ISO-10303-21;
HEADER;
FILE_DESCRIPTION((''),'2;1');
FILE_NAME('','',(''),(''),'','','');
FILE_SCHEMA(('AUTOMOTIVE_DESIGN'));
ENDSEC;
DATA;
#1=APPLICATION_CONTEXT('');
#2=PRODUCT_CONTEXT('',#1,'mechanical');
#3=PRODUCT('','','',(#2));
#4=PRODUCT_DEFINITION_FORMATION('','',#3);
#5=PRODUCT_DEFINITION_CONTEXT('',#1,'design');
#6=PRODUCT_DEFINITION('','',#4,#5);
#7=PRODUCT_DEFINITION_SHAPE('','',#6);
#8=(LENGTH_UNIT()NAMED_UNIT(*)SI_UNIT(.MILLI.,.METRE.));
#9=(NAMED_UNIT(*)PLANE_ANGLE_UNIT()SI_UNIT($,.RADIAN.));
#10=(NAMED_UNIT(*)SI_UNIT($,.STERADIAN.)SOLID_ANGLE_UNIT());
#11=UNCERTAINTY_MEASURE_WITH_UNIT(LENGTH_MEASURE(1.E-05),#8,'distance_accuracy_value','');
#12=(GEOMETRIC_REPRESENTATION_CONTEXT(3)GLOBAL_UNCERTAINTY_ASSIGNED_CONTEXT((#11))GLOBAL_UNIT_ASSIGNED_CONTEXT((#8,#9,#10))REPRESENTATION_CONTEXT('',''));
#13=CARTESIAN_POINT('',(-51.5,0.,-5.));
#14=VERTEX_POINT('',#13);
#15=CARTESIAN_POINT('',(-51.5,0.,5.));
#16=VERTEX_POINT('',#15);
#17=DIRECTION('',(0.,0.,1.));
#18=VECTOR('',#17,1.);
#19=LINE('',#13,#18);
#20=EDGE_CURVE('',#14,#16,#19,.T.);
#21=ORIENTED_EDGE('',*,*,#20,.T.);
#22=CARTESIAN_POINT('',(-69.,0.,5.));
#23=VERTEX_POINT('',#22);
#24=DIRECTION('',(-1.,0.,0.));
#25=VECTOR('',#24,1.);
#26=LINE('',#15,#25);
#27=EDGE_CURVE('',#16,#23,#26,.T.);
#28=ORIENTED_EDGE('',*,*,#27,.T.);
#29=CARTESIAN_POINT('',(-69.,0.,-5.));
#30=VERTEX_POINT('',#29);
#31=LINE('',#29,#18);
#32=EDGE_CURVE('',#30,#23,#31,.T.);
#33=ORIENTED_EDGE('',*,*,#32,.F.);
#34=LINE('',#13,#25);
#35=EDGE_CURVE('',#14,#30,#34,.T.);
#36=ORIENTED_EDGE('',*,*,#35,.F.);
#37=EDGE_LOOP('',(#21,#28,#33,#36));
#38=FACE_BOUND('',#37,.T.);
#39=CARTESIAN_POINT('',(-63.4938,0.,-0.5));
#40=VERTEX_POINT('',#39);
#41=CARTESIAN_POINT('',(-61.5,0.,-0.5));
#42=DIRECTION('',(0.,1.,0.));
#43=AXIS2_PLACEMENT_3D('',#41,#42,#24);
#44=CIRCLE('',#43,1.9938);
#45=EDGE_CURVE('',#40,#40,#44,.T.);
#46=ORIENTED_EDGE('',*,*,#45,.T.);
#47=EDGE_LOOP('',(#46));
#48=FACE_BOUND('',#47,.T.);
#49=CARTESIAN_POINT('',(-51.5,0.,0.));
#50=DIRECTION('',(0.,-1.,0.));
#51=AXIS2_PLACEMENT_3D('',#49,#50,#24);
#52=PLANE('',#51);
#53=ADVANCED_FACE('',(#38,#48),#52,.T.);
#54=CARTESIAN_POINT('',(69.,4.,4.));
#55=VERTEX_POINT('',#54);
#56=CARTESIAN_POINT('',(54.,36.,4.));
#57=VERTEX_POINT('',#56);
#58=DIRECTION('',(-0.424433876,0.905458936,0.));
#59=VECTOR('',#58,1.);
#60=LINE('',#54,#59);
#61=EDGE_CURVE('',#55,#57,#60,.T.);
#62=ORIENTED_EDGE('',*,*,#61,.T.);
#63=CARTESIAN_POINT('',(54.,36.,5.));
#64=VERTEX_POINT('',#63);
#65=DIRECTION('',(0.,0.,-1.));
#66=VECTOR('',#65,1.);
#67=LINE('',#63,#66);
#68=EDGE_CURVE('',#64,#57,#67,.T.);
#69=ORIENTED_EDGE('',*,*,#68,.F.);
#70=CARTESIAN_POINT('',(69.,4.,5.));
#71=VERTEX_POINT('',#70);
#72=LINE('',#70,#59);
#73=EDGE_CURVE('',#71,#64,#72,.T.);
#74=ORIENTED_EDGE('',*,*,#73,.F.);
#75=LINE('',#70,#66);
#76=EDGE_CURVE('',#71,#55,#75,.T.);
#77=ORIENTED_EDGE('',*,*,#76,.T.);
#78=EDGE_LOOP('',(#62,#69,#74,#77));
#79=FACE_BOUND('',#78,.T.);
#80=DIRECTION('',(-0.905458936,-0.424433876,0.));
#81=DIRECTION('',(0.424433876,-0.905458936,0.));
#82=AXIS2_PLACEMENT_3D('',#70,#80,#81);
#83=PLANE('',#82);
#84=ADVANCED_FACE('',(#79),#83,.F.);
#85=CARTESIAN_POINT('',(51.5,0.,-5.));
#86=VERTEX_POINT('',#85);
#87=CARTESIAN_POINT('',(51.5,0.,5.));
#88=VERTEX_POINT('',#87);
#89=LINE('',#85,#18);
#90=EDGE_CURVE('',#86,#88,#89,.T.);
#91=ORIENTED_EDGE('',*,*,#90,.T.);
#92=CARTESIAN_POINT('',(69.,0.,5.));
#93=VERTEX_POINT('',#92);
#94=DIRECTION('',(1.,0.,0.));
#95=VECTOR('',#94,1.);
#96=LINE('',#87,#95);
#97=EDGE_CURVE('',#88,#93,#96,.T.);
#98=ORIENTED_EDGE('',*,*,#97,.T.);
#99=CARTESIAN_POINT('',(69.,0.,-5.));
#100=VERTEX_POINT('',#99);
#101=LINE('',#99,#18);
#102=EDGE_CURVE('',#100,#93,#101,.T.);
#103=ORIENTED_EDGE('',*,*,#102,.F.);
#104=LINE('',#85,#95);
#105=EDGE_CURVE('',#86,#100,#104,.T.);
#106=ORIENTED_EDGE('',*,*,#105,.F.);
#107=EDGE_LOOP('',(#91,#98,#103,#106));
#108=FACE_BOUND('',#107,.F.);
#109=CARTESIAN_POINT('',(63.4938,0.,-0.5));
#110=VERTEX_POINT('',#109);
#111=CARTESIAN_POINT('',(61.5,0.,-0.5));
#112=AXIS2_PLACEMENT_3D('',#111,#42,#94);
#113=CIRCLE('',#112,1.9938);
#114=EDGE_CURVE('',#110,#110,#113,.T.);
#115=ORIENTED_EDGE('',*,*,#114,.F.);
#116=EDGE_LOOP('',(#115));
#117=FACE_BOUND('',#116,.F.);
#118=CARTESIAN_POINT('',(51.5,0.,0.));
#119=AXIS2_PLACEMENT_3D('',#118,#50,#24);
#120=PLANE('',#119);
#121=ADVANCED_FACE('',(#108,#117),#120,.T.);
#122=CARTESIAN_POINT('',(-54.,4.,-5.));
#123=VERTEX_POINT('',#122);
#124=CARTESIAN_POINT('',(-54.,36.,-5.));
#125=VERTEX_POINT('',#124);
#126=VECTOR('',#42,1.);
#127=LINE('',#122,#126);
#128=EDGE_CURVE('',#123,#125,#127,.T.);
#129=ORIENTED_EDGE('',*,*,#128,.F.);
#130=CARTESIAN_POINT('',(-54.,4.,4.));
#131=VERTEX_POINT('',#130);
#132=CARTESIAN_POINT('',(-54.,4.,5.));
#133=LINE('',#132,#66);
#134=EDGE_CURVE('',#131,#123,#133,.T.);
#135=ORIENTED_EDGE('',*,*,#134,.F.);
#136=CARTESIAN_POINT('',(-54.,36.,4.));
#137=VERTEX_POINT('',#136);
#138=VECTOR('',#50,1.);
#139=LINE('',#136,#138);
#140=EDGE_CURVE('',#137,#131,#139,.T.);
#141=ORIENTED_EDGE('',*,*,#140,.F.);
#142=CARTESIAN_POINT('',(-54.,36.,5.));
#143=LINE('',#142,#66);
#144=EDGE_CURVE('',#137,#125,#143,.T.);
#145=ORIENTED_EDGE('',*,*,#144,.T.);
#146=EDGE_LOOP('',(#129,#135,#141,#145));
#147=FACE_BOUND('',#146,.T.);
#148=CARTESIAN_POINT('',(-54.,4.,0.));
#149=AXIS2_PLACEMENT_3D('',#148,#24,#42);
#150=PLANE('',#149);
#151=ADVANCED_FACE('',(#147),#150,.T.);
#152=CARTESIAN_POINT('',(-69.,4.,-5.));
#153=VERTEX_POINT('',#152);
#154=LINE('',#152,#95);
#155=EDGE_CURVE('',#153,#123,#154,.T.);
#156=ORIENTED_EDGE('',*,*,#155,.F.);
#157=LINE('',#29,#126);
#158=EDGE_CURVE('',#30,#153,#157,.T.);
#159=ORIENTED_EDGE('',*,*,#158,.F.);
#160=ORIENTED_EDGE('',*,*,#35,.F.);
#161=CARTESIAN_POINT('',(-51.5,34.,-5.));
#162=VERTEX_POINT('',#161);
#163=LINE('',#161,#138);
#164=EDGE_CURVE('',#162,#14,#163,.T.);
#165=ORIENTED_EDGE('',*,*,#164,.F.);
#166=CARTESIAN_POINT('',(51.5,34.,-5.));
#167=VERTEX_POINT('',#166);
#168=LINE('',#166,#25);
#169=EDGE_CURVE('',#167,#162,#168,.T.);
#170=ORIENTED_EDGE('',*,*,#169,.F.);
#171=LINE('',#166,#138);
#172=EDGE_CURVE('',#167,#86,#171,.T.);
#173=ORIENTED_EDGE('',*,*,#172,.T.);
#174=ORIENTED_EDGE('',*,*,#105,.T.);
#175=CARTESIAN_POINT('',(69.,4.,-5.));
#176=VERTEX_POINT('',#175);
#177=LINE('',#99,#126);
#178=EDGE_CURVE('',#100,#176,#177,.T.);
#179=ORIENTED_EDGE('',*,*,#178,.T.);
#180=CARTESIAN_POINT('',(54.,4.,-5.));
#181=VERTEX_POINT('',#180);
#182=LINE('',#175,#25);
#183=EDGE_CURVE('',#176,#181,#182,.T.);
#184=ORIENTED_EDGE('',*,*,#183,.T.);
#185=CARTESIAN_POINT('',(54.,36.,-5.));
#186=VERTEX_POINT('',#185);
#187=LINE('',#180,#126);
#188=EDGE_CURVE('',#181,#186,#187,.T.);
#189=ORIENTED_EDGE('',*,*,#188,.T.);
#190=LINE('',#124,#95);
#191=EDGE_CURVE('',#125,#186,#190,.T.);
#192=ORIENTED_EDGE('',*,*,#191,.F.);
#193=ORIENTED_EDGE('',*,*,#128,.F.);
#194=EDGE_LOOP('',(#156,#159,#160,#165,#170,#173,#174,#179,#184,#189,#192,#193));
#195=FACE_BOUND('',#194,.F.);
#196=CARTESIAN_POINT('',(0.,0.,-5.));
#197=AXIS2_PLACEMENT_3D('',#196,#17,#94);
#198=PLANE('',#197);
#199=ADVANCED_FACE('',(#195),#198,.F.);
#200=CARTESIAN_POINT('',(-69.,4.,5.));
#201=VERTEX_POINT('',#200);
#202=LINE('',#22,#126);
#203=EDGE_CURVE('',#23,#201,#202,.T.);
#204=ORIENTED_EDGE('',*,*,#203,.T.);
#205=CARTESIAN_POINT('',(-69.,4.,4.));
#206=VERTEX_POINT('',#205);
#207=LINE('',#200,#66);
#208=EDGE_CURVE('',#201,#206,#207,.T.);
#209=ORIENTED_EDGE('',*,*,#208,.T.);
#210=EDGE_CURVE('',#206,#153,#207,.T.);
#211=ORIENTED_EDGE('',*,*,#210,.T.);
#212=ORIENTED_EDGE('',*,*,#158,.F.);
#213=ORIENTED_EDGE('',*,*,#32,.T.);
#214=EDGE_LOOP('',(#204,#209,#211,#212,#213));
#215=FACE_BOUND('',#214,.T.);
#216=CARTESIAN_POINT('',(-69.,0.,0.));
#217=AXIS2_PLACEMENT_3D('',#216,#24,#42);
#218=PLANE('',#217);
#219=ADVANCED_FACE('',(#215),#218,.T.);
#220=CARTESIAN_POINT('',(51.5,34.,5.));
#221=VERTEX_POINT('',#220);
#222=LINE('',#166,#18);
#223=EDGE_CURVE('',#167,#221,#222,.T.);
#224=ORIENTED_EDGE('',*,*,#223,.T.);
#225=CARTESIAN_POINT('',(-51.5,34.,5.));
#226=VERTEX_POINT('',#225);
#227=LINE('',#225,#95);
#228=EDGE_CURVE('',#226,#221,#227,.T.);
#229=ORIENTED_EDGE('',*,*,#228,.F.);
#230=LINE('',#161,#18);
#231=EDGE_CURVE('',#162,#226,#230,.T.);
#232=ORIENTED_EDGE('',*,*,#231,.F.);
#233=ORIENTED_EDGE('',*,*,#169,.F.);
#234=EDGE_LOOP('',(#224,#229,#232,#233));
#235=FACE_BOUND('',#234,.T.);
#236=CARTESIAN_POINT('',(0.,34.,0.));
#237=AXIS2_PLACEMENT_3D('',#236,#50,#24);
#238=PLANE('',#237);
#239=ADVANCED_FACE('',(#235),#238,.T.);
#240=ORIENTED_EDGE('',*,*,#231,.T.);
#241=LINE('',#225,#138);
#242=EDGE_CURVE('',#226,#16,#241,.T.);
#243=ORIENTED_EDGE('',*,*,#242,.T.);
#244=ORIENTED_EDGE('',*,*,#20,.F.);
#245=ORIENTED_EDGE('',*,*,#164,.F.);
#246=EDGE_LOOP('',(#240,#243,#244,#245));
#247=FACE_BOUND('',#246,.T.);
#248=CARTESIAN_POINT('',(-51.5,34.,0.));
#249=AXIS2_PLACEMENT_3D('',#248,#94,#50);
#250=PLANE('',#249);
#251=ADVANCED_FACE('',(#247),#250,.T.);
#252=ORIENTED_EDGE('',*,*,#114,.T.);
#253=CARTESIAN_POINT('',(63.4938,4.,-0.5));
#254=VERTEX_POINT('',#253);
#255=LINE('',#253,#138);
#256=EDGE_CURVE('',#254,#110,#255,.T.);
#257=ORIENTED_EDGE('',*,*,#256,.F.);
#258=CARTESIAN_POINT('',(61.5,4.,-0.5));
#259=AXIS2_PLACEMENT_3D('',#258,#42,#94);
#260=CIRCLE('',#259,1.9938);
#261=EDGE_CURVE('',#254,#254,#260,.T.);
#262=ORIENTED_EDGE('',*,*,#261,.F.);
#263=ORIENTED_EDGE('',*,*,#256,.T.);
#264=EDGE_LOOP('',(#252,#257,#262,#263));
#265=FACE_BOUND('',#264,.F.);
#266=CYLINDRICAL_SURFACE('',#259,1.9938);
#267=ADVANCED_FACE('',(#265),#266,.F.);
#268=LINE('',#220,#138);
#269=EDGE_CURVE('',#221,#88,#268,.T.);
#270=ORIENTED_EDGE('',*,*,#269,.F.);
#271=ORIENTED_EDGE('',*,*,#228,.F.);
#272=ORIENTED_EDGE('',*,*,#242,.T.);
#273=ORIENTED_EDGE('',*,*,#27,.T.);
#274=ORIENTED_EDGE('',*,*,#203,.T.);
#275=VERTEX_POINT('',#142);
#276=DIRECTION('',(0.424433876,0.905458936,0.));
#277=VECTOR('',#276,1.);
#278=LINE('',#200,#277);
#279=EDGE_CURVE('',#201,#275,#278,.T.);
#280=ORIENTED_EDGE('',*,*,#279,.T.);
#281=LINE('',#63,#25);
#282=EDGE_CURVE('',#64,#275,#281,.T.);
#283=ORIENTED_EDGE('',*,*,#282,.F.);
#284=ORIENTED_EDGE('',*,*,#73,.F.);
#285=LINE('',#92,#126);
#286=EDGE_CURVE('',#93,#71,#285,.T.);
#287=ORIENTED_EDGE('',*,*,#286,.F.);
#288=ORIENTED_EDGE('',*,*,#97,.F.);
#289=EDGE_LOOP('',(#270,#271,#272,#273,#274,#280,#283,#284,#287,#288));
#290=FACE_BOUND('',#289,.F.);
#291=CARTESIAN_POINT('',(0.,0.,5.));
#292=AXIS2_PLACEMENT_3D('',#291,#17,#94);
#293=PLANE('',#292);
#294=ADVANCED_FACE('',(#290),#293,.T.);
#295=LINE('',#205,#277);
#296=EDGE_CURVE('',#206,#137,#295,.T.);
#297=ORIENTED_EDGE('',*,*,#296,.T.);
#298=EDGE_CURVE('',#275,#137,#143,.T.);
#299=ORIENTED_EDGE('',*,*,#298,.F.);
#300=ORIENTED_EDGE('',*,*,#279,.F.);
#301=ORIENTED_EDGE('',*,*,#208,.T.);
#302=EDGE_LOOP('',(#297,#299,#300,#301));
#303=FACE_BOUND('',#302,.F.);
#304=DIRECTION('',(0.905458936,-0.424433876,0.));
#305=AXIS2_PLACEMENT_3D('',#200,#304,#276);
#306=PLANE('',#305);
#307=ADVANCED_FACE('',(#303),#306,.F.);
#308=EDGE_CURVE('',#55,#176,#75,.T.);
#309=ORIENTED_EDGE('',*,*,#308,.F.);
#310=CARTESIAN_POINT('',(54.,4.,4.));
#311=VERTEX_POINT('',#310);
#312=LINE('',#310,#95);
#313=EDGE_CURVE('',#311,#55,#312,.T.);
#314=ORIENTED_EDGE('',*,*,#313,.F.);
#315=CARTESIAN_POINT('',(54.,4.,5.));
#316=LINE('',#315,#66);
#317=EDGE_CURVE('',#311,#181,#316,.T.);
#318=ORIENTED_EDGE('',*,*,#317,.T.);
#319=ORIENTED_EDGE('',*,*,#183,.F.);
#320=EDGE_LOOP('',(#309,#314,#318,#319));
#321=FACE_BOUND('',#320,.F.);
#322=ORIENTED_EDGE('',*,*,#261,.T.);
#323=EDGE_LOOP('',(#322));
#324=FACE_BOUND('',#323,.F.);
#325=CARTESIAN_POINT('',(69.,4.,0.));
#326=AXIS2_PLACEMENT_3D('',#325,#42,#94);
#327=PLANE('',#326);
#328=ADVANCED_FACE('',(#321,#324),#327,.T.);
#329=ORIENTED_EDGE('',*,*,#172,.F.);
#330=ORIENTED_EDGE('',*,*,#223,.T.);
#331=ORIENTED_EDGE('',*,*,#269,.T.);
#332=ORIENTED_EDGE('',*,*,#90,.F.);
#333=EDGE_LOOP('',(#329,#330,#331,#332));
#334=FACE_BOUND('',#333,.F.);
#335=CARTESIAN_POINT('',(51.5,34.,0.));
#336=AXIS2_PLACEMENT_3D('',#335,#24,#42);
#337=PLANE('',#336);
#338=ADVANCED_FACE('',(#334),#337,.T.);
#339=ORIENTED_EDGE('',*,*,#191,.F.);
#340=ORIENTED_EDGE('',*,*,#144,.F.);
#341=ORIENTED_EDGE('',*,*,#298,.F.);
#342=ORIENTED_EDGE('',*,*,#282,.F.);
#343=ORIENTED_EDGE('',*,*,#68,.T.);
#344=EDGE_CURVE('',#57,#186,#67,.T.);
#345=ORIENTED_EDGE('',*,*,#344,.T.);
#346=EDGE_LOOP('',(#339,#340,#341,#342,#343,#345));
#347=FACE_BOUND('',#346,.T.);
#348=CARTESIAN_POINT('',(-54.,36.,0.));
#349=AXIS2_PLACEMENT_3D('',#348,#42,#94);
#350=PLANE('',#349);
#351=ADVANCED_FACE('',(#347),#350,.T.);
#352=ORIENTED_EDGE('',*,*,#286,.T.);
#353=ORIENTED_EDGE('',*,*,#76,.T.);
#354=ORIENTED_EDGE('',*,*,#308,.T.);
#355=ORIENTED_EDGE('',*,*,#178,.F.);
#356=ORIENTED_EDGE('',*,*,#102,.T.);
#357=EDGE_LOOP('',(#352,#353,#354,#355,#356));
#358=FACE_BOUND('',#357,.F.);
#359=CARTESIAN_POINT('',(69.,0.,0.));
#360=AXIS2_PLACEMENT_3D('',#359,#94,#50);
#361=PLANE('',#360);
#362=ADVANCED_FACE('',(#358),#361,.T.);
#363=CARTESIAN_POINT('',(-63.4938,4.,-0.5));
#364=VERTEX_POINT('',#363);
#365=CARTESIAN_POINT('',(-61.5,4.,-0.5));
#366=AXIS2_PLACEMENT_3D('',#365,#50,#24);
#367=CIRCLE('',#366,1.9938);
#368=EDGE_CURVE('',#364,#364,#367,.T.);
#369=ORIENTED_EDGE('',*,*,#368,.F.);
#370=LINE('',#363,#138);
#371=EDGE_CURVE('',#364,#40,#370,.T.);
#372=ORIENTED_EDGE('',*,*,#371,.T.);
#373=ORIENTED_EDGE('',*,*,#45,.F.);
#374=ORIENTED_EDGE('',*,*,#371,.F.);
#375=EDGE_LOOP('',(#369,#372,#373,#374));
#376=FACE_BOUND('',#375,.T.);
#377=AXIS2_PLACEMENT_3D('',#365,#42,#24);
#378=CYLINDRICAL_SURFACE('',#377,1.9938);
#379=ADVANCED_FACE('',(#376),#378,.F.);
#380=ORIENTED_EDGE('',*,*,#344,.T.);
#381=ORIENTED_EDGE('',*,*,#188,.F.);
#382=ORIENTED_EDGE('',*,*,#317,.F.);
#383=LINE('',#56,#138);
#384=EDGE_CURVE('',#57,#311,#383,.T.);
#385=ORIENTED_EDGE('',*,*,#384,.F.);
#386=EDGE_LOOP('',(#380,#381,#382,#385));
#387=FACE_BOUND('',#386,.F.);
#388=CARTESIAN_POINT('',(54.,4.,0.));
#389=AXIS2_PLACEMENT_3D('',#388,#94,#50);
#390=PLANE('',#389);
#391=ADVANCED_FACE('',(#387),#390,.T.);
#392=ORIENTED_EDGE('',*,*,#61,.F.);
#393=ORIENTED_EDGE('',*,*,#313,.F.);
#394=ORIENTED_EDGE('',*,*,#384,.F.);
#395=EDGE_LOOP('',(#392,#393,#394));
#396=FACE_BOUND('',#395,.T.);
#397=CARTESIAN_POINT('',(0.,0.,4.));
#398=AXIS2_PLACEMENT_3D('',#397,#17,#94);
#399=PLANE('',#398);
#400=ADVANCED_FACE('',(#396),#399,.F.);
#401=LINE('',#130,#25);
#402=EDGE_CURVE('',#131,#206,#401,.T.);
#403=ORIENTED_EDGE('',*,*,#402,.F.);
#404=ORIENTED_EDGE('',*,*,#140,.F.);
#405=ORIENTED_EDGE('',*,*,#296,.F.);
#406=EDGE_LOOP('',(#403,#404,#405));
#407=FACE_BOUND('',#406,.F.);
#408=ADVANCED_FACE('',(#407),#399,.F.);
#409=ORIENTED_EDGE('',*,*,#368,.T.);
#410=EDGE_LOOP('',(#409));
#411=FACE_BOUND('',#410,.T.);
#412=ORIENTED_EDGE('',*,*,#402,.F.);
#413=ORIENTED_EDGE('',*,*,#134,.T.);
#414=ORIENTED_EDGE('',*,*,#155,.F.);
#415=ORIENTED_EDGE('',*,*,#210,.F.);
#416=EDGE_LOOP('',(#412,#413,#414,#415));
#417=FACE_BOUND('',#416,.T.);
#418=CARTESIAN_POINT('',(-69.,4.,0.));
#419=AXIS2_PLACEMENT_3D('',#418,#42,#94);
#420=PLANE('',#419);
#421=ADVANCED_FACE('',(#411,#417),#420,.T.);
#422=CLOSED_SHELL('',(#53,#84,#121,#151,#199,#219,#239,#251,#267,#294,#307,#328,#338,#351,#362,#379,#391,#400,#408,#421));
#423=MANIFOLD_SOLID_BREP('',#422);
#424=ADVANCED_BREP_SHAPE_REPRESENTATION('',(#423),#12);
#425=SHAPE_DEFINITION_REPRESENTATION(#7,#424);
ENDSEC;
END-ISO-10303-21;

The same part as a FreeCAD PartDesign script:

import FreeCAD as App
import Part
import Sketcher

doc = App.newDocument("Part")
body = doc.addObject("PartDesign::Body", "Body")

# Sketch on XY plane
sketch1 = body.newObject("Sketcher::SketchObject", "Sketch")
sketch1.AttachmentSupport = (doc.getObject("XY_Plane"), [""])
sketch1.MapMode = "FlatFace"
sketch1.addGeometry(Part.LineSegment(App.Vector(-69, 4, 0), App.Vector(-69, 0, 0)), False)
sketch1.addGeometry(Part.LineSegment(App.Vector(-69, 0, 0), App.Vector(-51.5, 0, 0)), False)
sketch1.addGeometry(Part.LineSegment(App.Vector(-51.5, 0, 0), App.Vector(-51.5, 34, 0)), False)
sketch1.addGeometry(Part.LineSegment(App.Vector(-51.5, 34, 0), App.Vector(0, 34, 0)), False)
sketch1.addGeometry(Part.LineSegment(App.Vector(0, 34, 0), App.Vector(0, 36, 0)), False)
sketch1.addGeometry(Part.LineSegment(App.Vector(0, 36, 0), App.Vector(-54, 36, 0)), False)
sketch1.addGeometry(Part.LineSegment(App.Vector(-54, 36, 0), App.Vector(-54, 4, 0)), False)
sketch1.addGeometry(Part.LineSegment(App.Vector(-54, 4, 0), App.Vector(-69, 4, 0)), False)
sketch1.addConstraint(Sketcher.Constraint("Coincident", 0, 2, 1, 1))
sketch1.addConstraint(Sketcher.Constraint("Coincident", 1, 2, 2, 1))
sketch1.addConstraint(Sketcher.Constraint("Coincident", 2, 2, 3, 1))
sketch1.addConstraint(Sketcher.Constraint("Coincident", 3, 2, 4, 1))
sketch1.addConstraint(Sketcher.Constraint("Coincident", 4, 2, 5, 1))
sketch1.addConstraint(Sketcher.Constraint("Coincident", 5, 2, 6, 1))
sketch1.addConstraint(Sketcher.Constraint("Coincident", 6, 2, 7, 1))
sketch1.addConstraint(Sketcher.Constraint("Coincident", 7, 2, 0, 1))
sketch1.addConstraint(Sketcher.Constraint("Vertical", 0))
sketch1.addConstraint(Sketcher.Constraint("Horizontal", 1))
sketch1.addConstraint(Sketcher.Constraint("Vertical", 2))
sketch1.addConstraint(Sketcher.Constraint("Horizontal", 3))
sketch1.addConstraint(Sketcher.Constraint("Vertical", 4))
sketch1.addConstraint(Sketcher.Constraint("Horizontal", 5))
sketch1.addConstraint(Sketcher.Constraint("Vertical", 6))
sketch1.addConstraint(Sketcher.Constraint("Horizontal", 7))
sketch1.addConstraint(Sketcher.Constraint("PointOnObject", 0, 2, -1))
sketch1.addConstraint(Sketcher.Constraint("PointOnObject", 3, 2, -2))
sketch1.addConstraint(Sketcher.Constraint("DistanceX", 7, 2, 7, 1, 15.0))
sketch1.addConstraint(Sketcher.Constraint("DistanceY", 0, 2, 0, 1, 4.0))
sketch1.addConstraint(Sketcher.Constraint("DistanceY", 2, 1, 2, 2, 34.0))
sketch1.addConstraint(Sketcher.Constraint("DistanceY", 4, 1, 4, 2, 2.0))
sketch1.addConstraint(Sketcher.Constraint("DistanceX", 3, 1, 3, 2, 51.5))
sketch1.addConstraint(Sketcher.Constraint("DistanceX", 5, 2, 2, 2, 2.5))
pad1 = body.newObject("PartDesign::Pad", "Pad")
pad1.Profile = sketch1
pad1.Length = 10
pad1.Midplane = True
doc.recompute()

mirrored = body.newObject("PartDesign::Mirrored", "Mirrored")
mirrored.Originals = [pad1]
mirrored.MirrorPlane = (doc.getObject("YZ_Plane"), [""])
body.Tip = mirrored

# Sketch on XY plane
sketch2 = body.newObject("Sketcher::SketchObject", "Sketch001")
sketch2.AttachmentSupport = (doc.getObject("XY_Plane"), [""])
sketch2.MapMode = "FlatFace"
sketch2.AttachmentOffset = App.Placement(App.Vector(0, 0, 5), App.Rotation())
sketch2.addGeometry(Part.LineSegment(App.Vector(-54, 4, 0), App.Vector(-54, 36, 0)), False)
sketch2.addGeometry(Part.LineSegment(App.Vector(-54, 36, 0), App.Vector(-69, 4, 0)), False)
sketch2.addGeometry(Part.LineSegment(App.Vector(-69, 4, 0), App.Vector(-54, 4, 0)), False)
sketch2.addConstraint(Sketcher.Constraint("Coincident", 0, 2, 1, 1))
sketch2.addConstraint(Sketcher.Constraint("Coincident", 1, 2, 2, 1))
sketch2.addConstraint(Sketcher.Constraint("Coincident", 2, 2, 0, 1))
sketch2.addConstraint(Sketcher.Constraint("Vertical", 0))
sketch2.addConstraint(Sketcher.Constraint("Horizontal", 2))
sketch2.addConstraint(Sketcher.Constraint("DistanceX", 2, 1, 2, 2, 15.0))
sketch2.addConstraint(Sketcher.Constraint("DistanceY", 0, 1, 0, 2, 32.0))
sketch2.addConstraint(Sketcher.Constraint("DistanceX", 0, 2, -1, 1, 54.0))
sketch2.addConstraint(Sketcher.Constraint("DistanceY", -1, 1, 0, 2, 36.0))
pad2 = body.newObject("PartDesign::Pad", "Pad001")
pad2.Profile = sketch2
pad2.Length = 1
pad2.Reversed = True
doc.recompute()

mirrored2 = body.newObject("PartDesign::Mirrored", "Mirrored001")
mirrored2.Originals = [pad2]
mirrored2.MirrorPlane = (doc.getObject("YZ_Plane"), [""])
body.Tip = mirrored2

# Sketch on XZ plane
sketch3 = body.newObject("Sketcher::SketchObject", "Sketch002")
sketch3.AttachmentSupport = (doc.getObject("XZ_Plane"), [""])
sketch3.MapMode = "FlatFace"
sketch3.AttachmentOffset = App.Placement(App.Vector(0, 0, -4), App.Rotation())
sketch3.addGeometry(Part.Circle(App.Vector(61.5, -0.5, 0), App.Vector(0, 0, 1), 2), False)
sketch3.addConstraint(Sketcher.Constraint("Diameter", 0, 3.9876))
sketch3.addConstraint(Sketcher.Constraint("DistanceX", -1, 1, 0, 3, 61.5))
sketch3.addConstraint(Sketcher.Constraint("DistanceY", 0, 3, -1, 1, 0.5))
pocket1 = body.newObject("PartDesign::Pocket", "Pocket")
pocket1.Profile = sketch3
pocket1.Length = 20
pocket1.Reversed = True
doc.recompute()

mirrored3 = body.newObject("PartDesign::Mirrored", "Mirrored002")
mirrored3.Originals = [pocket1]
mirrored3.MirrorPlane = (doc.getObject("YZ_Plane"), [""])
body.Tip = mirrored3

doc.recompute()
